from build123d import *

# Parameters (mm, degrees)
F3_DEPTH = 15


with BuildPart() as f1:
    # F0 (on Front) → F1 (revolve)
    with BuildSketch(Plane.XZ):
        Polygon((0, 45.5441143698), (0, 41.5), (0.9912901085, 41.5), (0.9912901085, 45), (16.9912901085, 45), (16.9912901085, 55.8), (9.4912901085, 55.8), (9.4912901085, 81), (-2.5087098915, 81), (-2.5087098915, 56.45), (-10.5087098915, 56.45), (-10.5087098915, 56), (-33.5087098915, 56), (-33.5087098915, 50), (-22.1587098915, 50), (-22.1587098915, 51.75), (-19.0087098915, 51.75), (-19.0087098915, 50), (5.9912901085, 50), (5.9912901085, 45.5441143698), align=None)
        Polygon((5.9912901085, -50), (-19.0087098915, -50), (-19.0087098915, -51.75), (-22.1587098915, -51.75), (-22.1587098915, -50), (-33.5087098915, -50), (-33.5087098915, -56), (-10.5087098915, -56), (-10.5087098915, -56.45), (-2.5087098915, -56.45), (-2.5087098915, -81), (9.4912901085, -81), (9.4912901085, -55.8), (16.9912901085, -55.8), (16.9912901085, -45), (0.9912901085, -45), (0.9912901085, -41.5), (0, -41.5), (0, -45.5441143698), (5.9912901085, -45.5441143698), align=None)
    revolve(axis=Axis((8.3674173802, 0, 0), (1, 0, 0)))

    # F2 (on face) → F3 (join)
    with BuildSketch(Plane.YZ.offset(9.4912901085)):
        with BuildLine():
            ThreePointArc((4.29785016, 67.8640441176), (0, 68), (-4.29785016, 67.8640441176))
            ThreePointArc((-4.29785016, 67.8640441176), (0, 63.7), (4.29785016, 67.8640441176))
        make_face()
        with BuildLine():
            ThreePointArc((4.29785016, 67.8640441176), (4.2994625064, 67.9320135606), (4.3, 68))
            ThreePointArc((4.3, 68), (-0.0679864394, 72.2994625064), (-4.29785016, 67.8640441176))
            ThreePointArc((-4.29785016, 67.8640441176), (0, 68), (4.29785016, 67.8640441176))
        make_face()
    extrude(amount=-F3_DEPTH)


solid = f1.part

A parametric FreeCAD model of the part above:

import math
import FreeCAD as App
import Part
import Sketcher
from FreeCAD import Vector
Q = App.Units.Quantity

doc = App.newDocument("Part")
body = doc.addObject("PartDesign::Body", "Body")

# Sketch on XZ plane
sketch1 = body.newObject("Sketcher::SketchObject", "Sketch")
sketch1.AttachmentSupport = (doc.getObject("XZ_Plane"), [""])
sketch1.MapMode = "FlatFace"
sketch1.addGeometry(Part.LineSegment(Vector(0, 45.54, 0), Vector(0, 41.5, 0)), False)
sketch1.addGeometry(Part.LineSegment(Vector(0, 41.5, 0), Vector(0.99, 41.5, 0)), False)
sketch1.addGeometry(Part.LineSegment(Vector(0.99, 41.5, 0), Vector(0.99, 45, 0)), False)
sketch1.addGeometry(Part.LineSegment(Vector(0.99, 45, 0), Vector(16.99, 45, 0)), False)
sketch1.addGeometry(Part.LineSegment(Vector(16.99, 45, 0), Vector(16.99, 55.8, 0)), False)
sketch1.addGeometry(Part.LineSegment(Vector(16.99, 55.8, 0), Vector(9.49, 55.8, 0)), False)
sketch1.addGeometry(Part.LineSegment(Vector(9.49, 55.8, 0), Vector(9.49, 81, 0)), False)
sketch1.addGeometry(Part.LineSegment(Vector(9.49, 81, 0), Vector(-2.51, 81, 0)), False)
sketch1.addGeometry(Part.LineSegment(Vector(-2.51, 81, 0), Vector(-2.51, 56.45, 0)), False)
sketch1.addGeometry(Part.LineSegment(Vector(-2.51, 56.45, 0), Vector(-10.51, 56.45, 0)), False)
sketch1.addGeometry(Part.LineSegment(Vector(-10.51, 56.45, 0), Vector(-10.51, 56, 0)), False)
sketch1.addGeometry(Part.LineSegment(Vector(-10.51, 56, 0), Vector(-33.51, 56, 0)), False)
sketch1.addGeometry(Part.LineSegment(Vector(-33.51, 56, 0), Vector(-33.51, 50, 0)), False)
sketch1.addGeometry(Part.LineSegment(Vector(-33.51, 50, 0), Vector(-22.16, 50, 0)), False)
sketch1.addGeometry(Part.LineSegment(Vector(-22.16, 50, 0), Vector(-22.16, 51.75, 0)), False)
sketch1.addGeometry(Part.LineSegment(Vector(-22.16, 51.75, 0), Vector(-19.01, 51.75, 0)), False)
sketch1.addGeometry(Part.LineSegment(Vector(-19.01, 51.75, 0), Vector(-19.01, 50, 0)), False)
sketch1.addGeometry(Part.LineSegment(Vector(-19.01, 50, 0), Vector(5.99, 50, 0)), False)
sketch1.addGeometry(Part.LineSegment(Vector(5.99, 50, 0), Vector(5.99, 45.54, 0)), False)
sketch1.addGeometry(Part.LineSegment(Vector(5.99, 45.54, 0), Vector(0, 45.54, 0)), False)
sketch1.addGeometry(Part.LineSegment(Vector(5.99, -50, 0), Vector(-19.01, -50, 0)), False)
sketch1.addGeometry(Part.LineSegment(Vector(-19.01, -50, 0), Vector(-19.01, -51.75, 0)), False)
sketch1.addGeometry(Part.LineSegment(Vector(-19.01, -51.75, 0), Vector(-22.16, -51.75, 0)), False)
sketch1.addGeometry(Part.LineSegment(Vector(-22.16, -51.75, 0), Vector(-22.16, -50, 0)), False)
sketch1.addGeometry(Part.LineSegment(Vector(-22.16, -50, 0), Vector(-33.51, -50, 0)), False)
sketch1.addGeometry(Part.LineSegment(Vector(-33.51, -50, 0), Vector(-33.51, -56, 0)), False)
sketch1.addGeometry(Part.LineSegment(Vector(-33.51, -56, 0), Vector(-10.51, -56, 0)), False)
sketch1.addGeometry(Part.LineSegment(Vector(-10.51, -56, 0), Vector(-10.51, -56.45, 0)), False)
sketch1.addGeometry(Part.LineSegment(Vector(-10.51, -56.45, 0), Vector(-2.51, -56.45, 0)), False)
sketch1.addGeometry(Part.LineSegment(Vector(-2.51, -56.45, 0), Vector(-2.51, -81, 0)), False)
sketch1.addGeometry(Part.LineSegment(Vector(-2.51, -81, 0), Vector(9.49, -81, 0)), False)
sketch1.addGeometry(Part.LineSegment(Vector(9.49, -81, 0), Vector(9.49, -55.8, 0)), False)
sketch1.addGeometry(Part.LineSegment(Vector(9.49, -55.8, 0), Vector(16.99, -55.8, 0)), False)
sketch1.addGeometry(Part.LineSegment(Vector(16.99, -55.8, 0), Vector(16.99, -45, 0)), False)
sketch1.addGeometry(Part.LineSegment(Vector(16.99, -45, 0), Vector(0.99, -45, 0)), False)
sketch1.addGeometry(Part.LineSegment(Vector(0.99, -45, 0), Vector(0.99, -41.5, 0)), False)
sketch1.addGeometry(Part.LineSegment(Vector(0.99, -41.5, 0), Vector(0, -41.5, 0)), False)
sketch1.addGeometry(Part.LineSegment(Vector(0, -41.5, 0), Vector(0, -45.54, 0)), False)
sketch1.addGeometry(Part.LineSegment(Vector(0, -45.54, 0), Vector(5.99, -45.54, 0)), False)
sketch1.addGeometry(Part.LineSegment(Vector(5.99, -45.54, 0), Vector(5.99, -50, 0)), False)
sketch1.addConstraint(Sketcher.Constraint("Coincident", 0, 2, 1, 1))
sketch1.addConstraint(Sketcher.Constraint("Coincident", 1, 2, 2, 1))
sketch1.addConstraint(Sketcher.Constraint("Coincident", 2, 2, 3, 1))
sketch1.addConstraint(Sketcher.Constraint("Coincident", 3, 2, 4, 1))
sketch1.addConstraint(Sketcher.Constraint("Coincident", 4, 2, 5, 1))
sketch1.addConstraint(Sketcher.Constraint("Coincident", 5, 2, 6, 1))
sketch1.addConstraint(Sketcher.Constraint("Coincident", 6, 2, 7, 1))
sketch1.addConstraint(Sketcher.Constraint("Coincident", 7, 2, 8, 1))
sketch1.addConstraint(Sketcher.Constraint("Coincident", 8, 2, 9, 1))
sketch1.addConstraint(Sketcher.Constraint("Coincident", 9, 2, 10, 1))
sketch1.addConstraint(Sketcher.Constraint("Coincident", 10, 2, 11, 1))
sketch1.addConstraint(Sketcher.Constraint("Coincident", 11, 2, 12, 1))
sketch1.addConstraint(Sketcher.Constraint("Coincident", 12, 2, 13, 1))
sketch1.addConstraint(Sketcher.Constraint("Coincident", 13, 2, 14, 1))
sketch1.addConstraint(Sketcher.Constraint("Coincident", 14, 2, 15, 1))
sketch1.addConstraint(Sketcher.Constraint("Coincident", 15, 2, 16, 1))
sketch1.addConstraint(Sketcher.Constraint("Coincident", 16, 2, 17, 1))
sketch1.addConstraint(Sketcher.Constraint("Coincident", 17, 2, 18, 1))
sketch1.addConstraint(Sketcher.Constraint("Coincident", 18, 2, 19, 1))
sketch1.addConstraint(Sketcher.Constraint("Coincident", 19, 2, 0, 1))
sketch1.addConstraint(Sketcher.Constraint("Coincident", 20, 2, 21, 1))
sketch1.addConstraint(Sketcher.Constraint("Coincident", 21, 2, 22, 1))
sketch1.addConstraint(Sketcher.Constraint("Coincident", 22, 2, 23, 1))
sketch1.addConstraint(Sketcher.Constraint("Coincident", 23, 2, 24, 1))
sketch1.addConstraint(Sketcher.Constraint("Coincident", 24, 2, 25, 1))
sketch1.addConstraint(Sketcher.Constraint("Coincident", 25, 2, 26, 1))
sketch1.addConstraint(Sketcher.Constraint("Coincident", 26, 2, 27, 1))
sketch1.addConstraint(Sketcher.Constraint("Coincident", 27, 2, 28, 1))
sketch1.addConstraint(Sketcher.Constraint("Coincident", 28, 2, 29, 1))
sketch1.addConstraint(Sketcher.Constraint("Coincident", 29, 2, 30, 1))
sketch1.addConstraint(Sketcher.Constraint("Coincident", 30, 2, 31, 1))
sketch1.addConstraint(Sketcher.Constraint("Coincident", 31, 2, 32, 1))
sketch1.addConstraint(Sketcher.Constraint("Coincident", 32, 2, 33, 1))
sketch1.addConstraint(Sketcher.Constraint("Coincident", 33, 2, 34, 1))
sketch1.addConstraint(Sketcher.Constraint("Coincident", 34, 2, 35, 1))
sketch1.addConstraint(Sketcher.Constraint("Coincident", 35, 2, 36, 1))
sketch1.addConstraint(Sketcher.Constraint("Coincident", 36, 2, 37, 1))
sketch1.addConstraint(Sketcher.Constraint("Coincident", 37, 2, 38, 1))
sketch1.addConstraint(Sketcher.Constraint("Coincident", 38, 2, 39, 1))
sketch1.addConstraint(Sketcher.Constraint("Coincident", 39, 2, 20, 1))
sketch1.addConstraint(Sketcher.Constraint("Vertical", 0))
sketch1.addConstraint(Sketcher.Constraint("Horizontal", 1))
sketch1.addConstraint(Sketcher.Constraint("Vertical", 2))
sketch1.addConstraint(Sketcher.Constraint("Horizontal", 3))
sketch1.addConstraint(Sketcher.Constraint("Vertical", 4))
sketch1.addConstraint(Sketcher.Constraint("Horizontal", 5))
sketch1.addConstraint(Sketcher.Constraint("Vertical", 6))
sketch1.addConstraint(Sketcher.Constraint("Horizontal", 7))
sketch1.addConstraint(Sketcher.Constraint("Vertical", 8))
sketch1.addConstraint(Sketcher.Constraint("Horizontal", 9))
sketch1.addConstraint(Sketcher.Constraint("Vertical", 10))
sketch1.addConstraint(Sketcher.Constraint("Horizontal", 11))
sketch1.addConstraint(Sketcher.Constraint("Vertical", 12))
sketch1.addConstraint(Sketcher.Constraint("Horizontal", 13))
sketch1.addConstraint(Sketcher.Constraint("Vertical", 14))
sketch1.addConstraint(Sketcher.Constraint("Horizontal", 15))
sketch1.addConstraint(Sketcher.Constraint("Vertical", 16))
sketch1.addConstraint(Sketcher.Constraint("Horizontal", 17))
sketch1.addConstraint(Sketcher.Constraint("Vertical", 18))
sketch1.addConstraint(Sketcher.Constraint("Horizontal", 19))
sketch1.addConstraint(Sketcher.Constraint("Horizontal", 20))
sketch1.addConstraint(Sketcher.Constraint("Vertical", 21))
sketch1.addConstraint(Sketcher.Constraint("Horizontal", 22))
sketch1.addConstraint(Sketcher.Constraint("Vertical", 23))
sketch1.addConstraint(Sketcher.Constraint("Horizontal", 24))
sketch1.addConstraint(Sketcher.Constraint("Vertical", 25))
sketch1.addConstraint(Sketcher.Constraint("Horizontal", 26))
sketch1.addConstraint(Sketcher.Constraint("Vertical", 27))
sketch1.addConstraint(Sketcher.Constraint("Horizontal", 28))
sketch1.addConstraint(Sketcher.Constraint("Vertical", 29))
sketch1.addConstraint(Sketcher.Constraint("Horizontal", 30))
sketch1.addConstraint(Sketcher.Constraint("Vertical", 31))
sketch1.addConstraint(Sketcher.Constraint("Horizontal", 32))
sketch1.addConstraint(Sketcher.Constraint("Vertical", 33))
sketch1.addConstraint(Sketcher.Constraint("Horizontal", 34))
sketch1.addConstraint(Sketcher.Constraint("Vertical", 35))
sketch1.addConstraint(Sketcher.Constraint("Horizontal", 36))
sketch1.addConstraint(Sketcher.Constraint("Vertical", 37))
sketch1.addConstraint(Sketcher.Constraint("Horizontal", 38))
sketch1.addConstraint(Sketcher.Constraint("Vertical", 39))
sketch1.addConstraint(Sketcher.Constraint("Symmetric", 0, 2, 36, 2, -1, 1))
sketch1.addConstraint(Sketcher.Constraint("Symmetric", 16, 2, 20, 2, -1))
sketch1.addConstraint(Sketcher.Constraint("Symmetric", 14, 2, 22, 2, -1))
sketch1.addConstraint(Sketcher.Constraint("Symmetric", 12, 2, 24, 2, -1))
sketch1.addConstraint(Sketcher.Constraint("Symmetric", 10, 2, 26, 2, -1))
sketch1.addConstraint(Sketcher.Constraint("Symmetric", 8, 2, 28, 2, -1))
sketch1.addConstraint(Sketcher.Constraint("Symmetric", 6, 2, 30, 2, -1))
sketch1.addConstraint(Sketcher.Constraint("Symmetric", 4, 2, 32, 2, -1))
sketch1.addConstraint(Sketcher.Constraint("Symmetric", 2, 2, 34, 2, -1))
sketch1.addConstraint(Sketcher.Constraint("Symmetric", 19, 2, 37, 2, -1))
sketch1.addConstraint(Sketcher.Constraint("Horizontal", 13, 2, 16, 2))
sketch1.addConstraint(Sketcher.Constraint("Vertical", 18, 2, 38, 2))
sketch1.addConstraint(Sketcher.Constraint("DistanceX", 3, 1, 3, 2, Q("16 mm")))
sketch1.addConstraint(Sketcher.Constraint("DistanceX", 7, 2, 7, 1, Q("12 mm")))
sketch1.addConstraint(Sketcher.Constraint("DistanceX", 9, 2, 9, 1, Q("8 mm")))
sketch1.addConstraint(Sketcher.Constraint("DistanceX", 11, 2, 11, 1, Q("23 mm")))
sketch1.addConstraint(Sketcher.Constraint("DistanceX", 17, 1, 17, 2, Q("25 mm")))
sketch1.addConstraint(Sketcher.Constraint("DistanceY", 12, 2, 12, 1, Q("6 mm")))
sketch1.addConstraint(Sketcher.Constraint("DistanceX", 5, 2, 5, 1, Q("7.5 mm")))
sketch1.addConstraint(Sketcher.Constraint("DistanceY", 2, 1, 2, 2, Q("3.5 mm")))
sketch1.addConstraint(Sketcher.Constraint("DistanceY", 4, 1, 4, 2, Q("10.8 mm")))
sketch1.addConstraint(Sketcher.Constraint("DistanceY", 6, 1, 6, 2, Q("25.2 mm")))
sketch1.addConstraint(Sketcher.Constraint("DistanceY", -1, 1, 2, 2, Q("45 mm")))
sketch1.addConstraint(Sketcher.Constraint("DistanceY", -1, 1, 10, 2, Q("56 mm")))
sketch1.addConstraint(Sketcher.Constraint("DistanceX", 2, 2, 17, 2, Q("5 mm")))
sketch1.addConstraint(Sketcher.Constraint("DistanceX", 13, 1, 13, 2, Q("11.35 mm")))
sketch1.addConstraint(Sketcher.Constraint("DistanceY", 8, 2, 8, 1, Q("24.55 mm")))
sketch1.addConstraint(Sketcher.Constraint("DistanceY", 14, 1, 14, 2, Q("1.75 mm")))
sketch1.addConstraint(Sketcher.Constraint("DistanceX", 1, 1, 1, 2, Q("0.99129 mm")))
sketch1.addConstraint(Sketcher.Constraint("DistanceY", 0, 2, 0, 1, Q("4.044114 mm")))
revolution = body.newObject("PartDesign::Revolution", "Revolution")
revolution.Profile = sketch1
revolution.ReferenceAxis = (sketch1, ["H_Axis"])
revolution.Angle = 360

# Sketch on YZ plane
sketch2 = body.newObject("Sketcher::SketchObject", "Sketch001")
sketch2.AttachmentSupport = (doc.getObject("YZ_Plane"), [""])
sketch2.MapMode = "FlatFace"
sketch2.AttachmentOffset = App.Placement(Vector(0, 0, 9.49129), App.Rotation())
sketch2.addGeometry(Part.ArcOfCircle(Part.Circle(Vector(0, 68, 0), Vector(0, 0, 1), 4.3), math.radians(-178), math.radians(-2)), False)
sketch2.addGeometry(Part.ArcOfCircle(Part.Circle(Vector(0, 68, 0), Vector(0, 0, 1), 4.3), math.radians(-1.81), math.radians(0)), False)
sketch2.addGeometry(Part.ArcOfCircle(Part.Circle(Vector(0, 68, 0), Vector(0, 0, 1), 4.3), math.radians(0), math.radians(182)), False)
sketch2.addConstraint(Sketcher.Constraint("Tangent", 0, 2, 1, 1))
sketch2.addConstraint(Sketcher.Constraint("Tangent", 1, 2, 2, 1))
sketch2.addConstraint(Sketcher.Constraint("Tangent", 2, 2, 0, 1))
sketch2.addConstraint(Sketcher.Constraint("Symmetric", 0, 2, 2, 2, -2))
sketch2.addConstraint(Sketcher.Constraint("Horizontal", 2, 3, 1, 2))
sketch2.addConstraint(Sketcher.Constraint("Radius", 0, Q("4.3 mm")))
sketch2.addConstraint(Sketcher.Constraint("DistanceY", -1, 1, 0, 3, Q("68 mm")))
sketch2.addConstraint(Sketcher.Constraint("DistanceX", 2, 2, 0, 2, Q("8.5957 mm")))
pad1 = body.newObject("PartDesign::Pad", "Pad")
pad1.Profile = sketch2
pad1.Length = 15
pad1.Reversed = True

doc.recompute()
